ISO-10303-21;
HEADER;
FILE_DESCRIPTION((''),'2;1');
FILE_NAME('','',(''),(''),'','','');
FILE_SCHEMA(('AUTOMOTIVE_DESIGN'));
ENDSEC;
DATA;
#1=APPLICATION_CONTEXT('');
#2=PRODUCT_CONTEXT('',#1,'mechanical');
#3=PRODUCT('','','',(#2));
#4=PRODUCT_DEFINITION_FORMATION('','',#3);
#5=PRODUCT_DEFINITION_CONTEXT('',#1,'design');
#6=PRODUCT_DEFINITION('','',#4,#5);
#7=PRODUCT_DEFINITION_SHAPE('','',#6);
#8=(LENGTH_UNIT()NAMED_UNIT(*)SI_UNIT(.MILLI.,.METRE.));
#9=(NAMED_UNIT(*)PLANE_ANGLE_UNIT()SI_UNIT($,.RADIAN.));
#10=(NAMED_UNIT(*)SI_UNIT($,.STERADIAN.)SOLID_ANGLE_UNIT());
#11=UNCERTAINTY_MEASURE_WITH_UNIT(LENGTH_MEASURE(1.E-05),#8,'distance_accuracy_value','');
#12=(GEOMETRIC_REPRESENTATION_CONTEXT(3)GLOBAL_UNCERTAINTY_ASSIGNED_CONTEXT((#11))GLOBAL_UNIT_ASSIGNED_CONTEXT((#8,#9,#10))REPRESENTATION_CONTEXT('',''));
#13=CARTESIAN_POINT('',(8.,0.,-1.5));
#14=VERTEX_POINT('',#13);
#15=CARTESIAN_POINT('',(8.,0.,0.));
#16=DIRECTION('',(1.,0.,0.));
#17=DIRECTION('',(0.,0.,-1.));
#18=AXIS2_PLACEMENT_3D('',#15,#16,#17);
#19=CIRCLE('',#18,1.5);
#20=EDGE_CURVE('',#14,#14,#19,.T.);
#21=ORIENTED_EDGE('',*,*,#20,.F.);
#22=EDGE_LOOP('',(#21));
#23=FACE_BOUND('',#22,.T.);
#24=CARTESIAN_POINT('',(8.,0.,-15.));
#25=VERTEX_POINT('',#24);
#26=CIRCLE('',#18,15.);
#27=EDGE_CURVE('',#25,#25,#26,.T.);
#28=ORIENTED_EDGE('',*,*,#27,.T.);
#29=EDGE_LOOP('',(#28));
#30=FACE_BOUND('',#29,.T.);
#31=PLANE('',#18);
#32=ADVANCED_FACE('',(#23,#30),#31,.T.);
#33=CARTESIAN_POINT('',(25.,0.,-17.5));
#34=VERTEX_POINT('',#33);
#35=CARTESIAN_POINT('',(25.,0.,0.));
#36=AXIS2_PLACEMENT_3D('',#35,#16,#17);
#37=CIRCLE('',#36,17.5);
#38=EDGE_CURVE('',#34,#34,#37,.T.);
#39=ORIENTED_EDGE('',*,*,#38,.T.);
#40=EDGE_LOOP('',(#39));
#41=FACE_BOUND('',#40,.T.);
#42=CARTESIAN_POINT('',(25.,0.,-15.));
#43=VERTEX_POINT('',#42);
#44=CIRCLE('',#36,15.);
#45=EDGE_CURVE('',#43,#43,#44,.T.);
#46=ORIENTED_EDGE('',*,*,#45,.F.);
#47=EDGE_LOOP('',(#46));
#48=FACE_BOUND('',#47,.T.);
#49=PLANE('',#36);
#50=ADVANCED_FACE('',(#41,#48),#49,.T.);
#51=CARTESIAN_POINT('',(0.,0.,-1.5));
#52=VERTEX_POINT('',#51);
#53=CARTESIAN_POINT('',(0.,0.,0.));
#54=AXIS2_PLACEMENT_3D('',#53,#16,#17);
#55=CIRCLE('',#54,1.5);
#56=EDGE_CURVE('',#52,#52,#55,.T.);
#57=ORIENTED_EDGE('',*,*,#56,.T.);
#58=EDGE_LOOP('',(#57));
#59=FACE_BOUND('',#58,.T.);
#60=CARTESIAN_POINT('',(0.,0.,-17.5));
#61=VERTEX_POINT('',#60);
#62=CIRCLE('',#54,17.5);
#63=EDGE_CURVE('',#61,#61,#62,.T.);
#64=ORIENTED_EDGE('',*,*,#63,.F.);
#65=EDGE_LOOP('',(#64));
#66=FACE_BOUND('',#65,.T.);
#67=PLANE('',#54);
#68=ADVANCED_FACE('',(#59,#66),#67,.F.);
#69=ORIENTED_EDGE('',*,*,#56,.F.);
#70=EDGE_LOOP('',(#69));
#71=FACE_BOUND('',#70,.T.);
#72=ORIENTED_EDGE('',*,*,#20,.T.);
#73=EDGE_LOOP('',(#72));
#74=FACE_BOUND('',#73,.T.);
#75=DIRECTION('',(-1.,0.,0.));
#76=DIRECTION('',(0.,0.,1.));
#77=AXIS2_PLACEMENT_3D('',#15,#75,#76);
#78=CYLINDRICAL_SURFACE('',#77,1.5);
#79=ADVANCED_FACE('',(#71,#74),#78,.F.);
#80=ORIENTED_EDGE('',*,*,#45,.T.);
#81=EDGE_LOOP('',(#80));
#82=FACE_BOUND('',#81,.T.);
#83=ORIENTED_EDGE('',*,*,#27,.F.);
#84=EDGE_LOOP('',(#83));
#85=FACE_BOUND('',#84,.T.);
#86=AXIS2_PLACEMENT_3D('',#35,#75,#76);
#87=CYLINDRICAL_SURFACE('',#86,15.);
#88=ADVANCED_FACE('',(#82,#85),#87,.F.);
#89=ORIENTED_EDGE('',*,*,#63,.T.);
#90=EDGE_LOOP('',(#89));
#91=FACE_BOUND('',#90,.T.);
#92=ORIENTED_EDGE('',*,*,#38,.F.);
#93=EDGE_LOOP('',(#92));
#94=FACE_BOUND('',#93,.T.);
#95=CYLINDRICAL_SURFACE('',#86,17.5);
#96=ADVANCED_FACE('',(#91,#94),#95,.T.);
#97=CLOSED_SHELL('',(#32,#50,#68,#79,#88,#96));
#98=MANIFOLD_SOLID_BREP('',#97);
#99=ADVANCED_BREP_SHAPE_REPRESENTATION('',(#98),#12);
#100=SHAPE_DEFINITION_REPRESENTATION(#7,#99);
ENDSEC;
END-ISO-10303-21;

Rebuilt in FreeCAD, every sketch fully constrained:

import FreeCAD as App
import Part
import Sketcher
from FreeCAD import Vector

doc = App.newDocument("Part")
body = doc.addObject("PartDesign::Body", "Body")

sketch1 = body.newObject("Sketcher::SketchObject", "Sketch")
sketch1.AttachmentSupport = (doc.getObject("YZ_Plane"), [""])
sketch1.MapMode = "FlatFace"
sketch1.addGeometry(Part.Circle(Vector(0, 0, 0), Vector(0, 0, 1), 18), False)
sketch1.addGeometry(Part.Circle(Vector(0, 0, 0), Vector(0, 0, 1), 15), False)
sketch1.addConstraint(Sketcher.Constraint("Coincident", 0, 3, -1, 1))
sketch1.addConstraint(Sketcher.Constraint("Coincident", 1, 3, -1, 1))
sketch1.addConstraint(Sketcher.Constraint("Diameter", 0, 35.0))
sketch1.addConstraint(Sketcher.Constraint("Diameter", 1, 30.0))
pad1 = body.newObject("PartDesign::Pad", "Pad")
pad1.Profile = sketch1
pad1.Length = 25

sketch2 = body.newObject("Sketcher::SketchObject", "Sketch001")
sketch2.AttachmentSupport = (doc.getObject("YZ_Plane"), [""])
sketch2.MapMode = "FlatFace"
sketch2.addGeometry(Part.Circle(Vector(0, 0, 0), Vector(0, 0, 1), 15), False)
sketch2.addGeometry(Part.Circle(Vector(0, 0, 0), Vector(0, 0, 1), 1.5), False)
sketch2.addConstraint(Sketcher.Constraint("Coincident", 0, 3, -1, 1))
sketch2.addConstraint(Sketcher.Constraint("Coincident", 1, 3, -1, 1))
sketch2.addConstraint(Sketcher.Constraint("Diameter", 0, 30.0))
sketch2.addConstraint(Sketcher.Constraint("Diameter", 1, 3.0))
pad2 = body.newObject("PartDesign::Pad", "Pad001")
pad2.Profile = sketch2
pad2.Length = 8

doc.recompute()
